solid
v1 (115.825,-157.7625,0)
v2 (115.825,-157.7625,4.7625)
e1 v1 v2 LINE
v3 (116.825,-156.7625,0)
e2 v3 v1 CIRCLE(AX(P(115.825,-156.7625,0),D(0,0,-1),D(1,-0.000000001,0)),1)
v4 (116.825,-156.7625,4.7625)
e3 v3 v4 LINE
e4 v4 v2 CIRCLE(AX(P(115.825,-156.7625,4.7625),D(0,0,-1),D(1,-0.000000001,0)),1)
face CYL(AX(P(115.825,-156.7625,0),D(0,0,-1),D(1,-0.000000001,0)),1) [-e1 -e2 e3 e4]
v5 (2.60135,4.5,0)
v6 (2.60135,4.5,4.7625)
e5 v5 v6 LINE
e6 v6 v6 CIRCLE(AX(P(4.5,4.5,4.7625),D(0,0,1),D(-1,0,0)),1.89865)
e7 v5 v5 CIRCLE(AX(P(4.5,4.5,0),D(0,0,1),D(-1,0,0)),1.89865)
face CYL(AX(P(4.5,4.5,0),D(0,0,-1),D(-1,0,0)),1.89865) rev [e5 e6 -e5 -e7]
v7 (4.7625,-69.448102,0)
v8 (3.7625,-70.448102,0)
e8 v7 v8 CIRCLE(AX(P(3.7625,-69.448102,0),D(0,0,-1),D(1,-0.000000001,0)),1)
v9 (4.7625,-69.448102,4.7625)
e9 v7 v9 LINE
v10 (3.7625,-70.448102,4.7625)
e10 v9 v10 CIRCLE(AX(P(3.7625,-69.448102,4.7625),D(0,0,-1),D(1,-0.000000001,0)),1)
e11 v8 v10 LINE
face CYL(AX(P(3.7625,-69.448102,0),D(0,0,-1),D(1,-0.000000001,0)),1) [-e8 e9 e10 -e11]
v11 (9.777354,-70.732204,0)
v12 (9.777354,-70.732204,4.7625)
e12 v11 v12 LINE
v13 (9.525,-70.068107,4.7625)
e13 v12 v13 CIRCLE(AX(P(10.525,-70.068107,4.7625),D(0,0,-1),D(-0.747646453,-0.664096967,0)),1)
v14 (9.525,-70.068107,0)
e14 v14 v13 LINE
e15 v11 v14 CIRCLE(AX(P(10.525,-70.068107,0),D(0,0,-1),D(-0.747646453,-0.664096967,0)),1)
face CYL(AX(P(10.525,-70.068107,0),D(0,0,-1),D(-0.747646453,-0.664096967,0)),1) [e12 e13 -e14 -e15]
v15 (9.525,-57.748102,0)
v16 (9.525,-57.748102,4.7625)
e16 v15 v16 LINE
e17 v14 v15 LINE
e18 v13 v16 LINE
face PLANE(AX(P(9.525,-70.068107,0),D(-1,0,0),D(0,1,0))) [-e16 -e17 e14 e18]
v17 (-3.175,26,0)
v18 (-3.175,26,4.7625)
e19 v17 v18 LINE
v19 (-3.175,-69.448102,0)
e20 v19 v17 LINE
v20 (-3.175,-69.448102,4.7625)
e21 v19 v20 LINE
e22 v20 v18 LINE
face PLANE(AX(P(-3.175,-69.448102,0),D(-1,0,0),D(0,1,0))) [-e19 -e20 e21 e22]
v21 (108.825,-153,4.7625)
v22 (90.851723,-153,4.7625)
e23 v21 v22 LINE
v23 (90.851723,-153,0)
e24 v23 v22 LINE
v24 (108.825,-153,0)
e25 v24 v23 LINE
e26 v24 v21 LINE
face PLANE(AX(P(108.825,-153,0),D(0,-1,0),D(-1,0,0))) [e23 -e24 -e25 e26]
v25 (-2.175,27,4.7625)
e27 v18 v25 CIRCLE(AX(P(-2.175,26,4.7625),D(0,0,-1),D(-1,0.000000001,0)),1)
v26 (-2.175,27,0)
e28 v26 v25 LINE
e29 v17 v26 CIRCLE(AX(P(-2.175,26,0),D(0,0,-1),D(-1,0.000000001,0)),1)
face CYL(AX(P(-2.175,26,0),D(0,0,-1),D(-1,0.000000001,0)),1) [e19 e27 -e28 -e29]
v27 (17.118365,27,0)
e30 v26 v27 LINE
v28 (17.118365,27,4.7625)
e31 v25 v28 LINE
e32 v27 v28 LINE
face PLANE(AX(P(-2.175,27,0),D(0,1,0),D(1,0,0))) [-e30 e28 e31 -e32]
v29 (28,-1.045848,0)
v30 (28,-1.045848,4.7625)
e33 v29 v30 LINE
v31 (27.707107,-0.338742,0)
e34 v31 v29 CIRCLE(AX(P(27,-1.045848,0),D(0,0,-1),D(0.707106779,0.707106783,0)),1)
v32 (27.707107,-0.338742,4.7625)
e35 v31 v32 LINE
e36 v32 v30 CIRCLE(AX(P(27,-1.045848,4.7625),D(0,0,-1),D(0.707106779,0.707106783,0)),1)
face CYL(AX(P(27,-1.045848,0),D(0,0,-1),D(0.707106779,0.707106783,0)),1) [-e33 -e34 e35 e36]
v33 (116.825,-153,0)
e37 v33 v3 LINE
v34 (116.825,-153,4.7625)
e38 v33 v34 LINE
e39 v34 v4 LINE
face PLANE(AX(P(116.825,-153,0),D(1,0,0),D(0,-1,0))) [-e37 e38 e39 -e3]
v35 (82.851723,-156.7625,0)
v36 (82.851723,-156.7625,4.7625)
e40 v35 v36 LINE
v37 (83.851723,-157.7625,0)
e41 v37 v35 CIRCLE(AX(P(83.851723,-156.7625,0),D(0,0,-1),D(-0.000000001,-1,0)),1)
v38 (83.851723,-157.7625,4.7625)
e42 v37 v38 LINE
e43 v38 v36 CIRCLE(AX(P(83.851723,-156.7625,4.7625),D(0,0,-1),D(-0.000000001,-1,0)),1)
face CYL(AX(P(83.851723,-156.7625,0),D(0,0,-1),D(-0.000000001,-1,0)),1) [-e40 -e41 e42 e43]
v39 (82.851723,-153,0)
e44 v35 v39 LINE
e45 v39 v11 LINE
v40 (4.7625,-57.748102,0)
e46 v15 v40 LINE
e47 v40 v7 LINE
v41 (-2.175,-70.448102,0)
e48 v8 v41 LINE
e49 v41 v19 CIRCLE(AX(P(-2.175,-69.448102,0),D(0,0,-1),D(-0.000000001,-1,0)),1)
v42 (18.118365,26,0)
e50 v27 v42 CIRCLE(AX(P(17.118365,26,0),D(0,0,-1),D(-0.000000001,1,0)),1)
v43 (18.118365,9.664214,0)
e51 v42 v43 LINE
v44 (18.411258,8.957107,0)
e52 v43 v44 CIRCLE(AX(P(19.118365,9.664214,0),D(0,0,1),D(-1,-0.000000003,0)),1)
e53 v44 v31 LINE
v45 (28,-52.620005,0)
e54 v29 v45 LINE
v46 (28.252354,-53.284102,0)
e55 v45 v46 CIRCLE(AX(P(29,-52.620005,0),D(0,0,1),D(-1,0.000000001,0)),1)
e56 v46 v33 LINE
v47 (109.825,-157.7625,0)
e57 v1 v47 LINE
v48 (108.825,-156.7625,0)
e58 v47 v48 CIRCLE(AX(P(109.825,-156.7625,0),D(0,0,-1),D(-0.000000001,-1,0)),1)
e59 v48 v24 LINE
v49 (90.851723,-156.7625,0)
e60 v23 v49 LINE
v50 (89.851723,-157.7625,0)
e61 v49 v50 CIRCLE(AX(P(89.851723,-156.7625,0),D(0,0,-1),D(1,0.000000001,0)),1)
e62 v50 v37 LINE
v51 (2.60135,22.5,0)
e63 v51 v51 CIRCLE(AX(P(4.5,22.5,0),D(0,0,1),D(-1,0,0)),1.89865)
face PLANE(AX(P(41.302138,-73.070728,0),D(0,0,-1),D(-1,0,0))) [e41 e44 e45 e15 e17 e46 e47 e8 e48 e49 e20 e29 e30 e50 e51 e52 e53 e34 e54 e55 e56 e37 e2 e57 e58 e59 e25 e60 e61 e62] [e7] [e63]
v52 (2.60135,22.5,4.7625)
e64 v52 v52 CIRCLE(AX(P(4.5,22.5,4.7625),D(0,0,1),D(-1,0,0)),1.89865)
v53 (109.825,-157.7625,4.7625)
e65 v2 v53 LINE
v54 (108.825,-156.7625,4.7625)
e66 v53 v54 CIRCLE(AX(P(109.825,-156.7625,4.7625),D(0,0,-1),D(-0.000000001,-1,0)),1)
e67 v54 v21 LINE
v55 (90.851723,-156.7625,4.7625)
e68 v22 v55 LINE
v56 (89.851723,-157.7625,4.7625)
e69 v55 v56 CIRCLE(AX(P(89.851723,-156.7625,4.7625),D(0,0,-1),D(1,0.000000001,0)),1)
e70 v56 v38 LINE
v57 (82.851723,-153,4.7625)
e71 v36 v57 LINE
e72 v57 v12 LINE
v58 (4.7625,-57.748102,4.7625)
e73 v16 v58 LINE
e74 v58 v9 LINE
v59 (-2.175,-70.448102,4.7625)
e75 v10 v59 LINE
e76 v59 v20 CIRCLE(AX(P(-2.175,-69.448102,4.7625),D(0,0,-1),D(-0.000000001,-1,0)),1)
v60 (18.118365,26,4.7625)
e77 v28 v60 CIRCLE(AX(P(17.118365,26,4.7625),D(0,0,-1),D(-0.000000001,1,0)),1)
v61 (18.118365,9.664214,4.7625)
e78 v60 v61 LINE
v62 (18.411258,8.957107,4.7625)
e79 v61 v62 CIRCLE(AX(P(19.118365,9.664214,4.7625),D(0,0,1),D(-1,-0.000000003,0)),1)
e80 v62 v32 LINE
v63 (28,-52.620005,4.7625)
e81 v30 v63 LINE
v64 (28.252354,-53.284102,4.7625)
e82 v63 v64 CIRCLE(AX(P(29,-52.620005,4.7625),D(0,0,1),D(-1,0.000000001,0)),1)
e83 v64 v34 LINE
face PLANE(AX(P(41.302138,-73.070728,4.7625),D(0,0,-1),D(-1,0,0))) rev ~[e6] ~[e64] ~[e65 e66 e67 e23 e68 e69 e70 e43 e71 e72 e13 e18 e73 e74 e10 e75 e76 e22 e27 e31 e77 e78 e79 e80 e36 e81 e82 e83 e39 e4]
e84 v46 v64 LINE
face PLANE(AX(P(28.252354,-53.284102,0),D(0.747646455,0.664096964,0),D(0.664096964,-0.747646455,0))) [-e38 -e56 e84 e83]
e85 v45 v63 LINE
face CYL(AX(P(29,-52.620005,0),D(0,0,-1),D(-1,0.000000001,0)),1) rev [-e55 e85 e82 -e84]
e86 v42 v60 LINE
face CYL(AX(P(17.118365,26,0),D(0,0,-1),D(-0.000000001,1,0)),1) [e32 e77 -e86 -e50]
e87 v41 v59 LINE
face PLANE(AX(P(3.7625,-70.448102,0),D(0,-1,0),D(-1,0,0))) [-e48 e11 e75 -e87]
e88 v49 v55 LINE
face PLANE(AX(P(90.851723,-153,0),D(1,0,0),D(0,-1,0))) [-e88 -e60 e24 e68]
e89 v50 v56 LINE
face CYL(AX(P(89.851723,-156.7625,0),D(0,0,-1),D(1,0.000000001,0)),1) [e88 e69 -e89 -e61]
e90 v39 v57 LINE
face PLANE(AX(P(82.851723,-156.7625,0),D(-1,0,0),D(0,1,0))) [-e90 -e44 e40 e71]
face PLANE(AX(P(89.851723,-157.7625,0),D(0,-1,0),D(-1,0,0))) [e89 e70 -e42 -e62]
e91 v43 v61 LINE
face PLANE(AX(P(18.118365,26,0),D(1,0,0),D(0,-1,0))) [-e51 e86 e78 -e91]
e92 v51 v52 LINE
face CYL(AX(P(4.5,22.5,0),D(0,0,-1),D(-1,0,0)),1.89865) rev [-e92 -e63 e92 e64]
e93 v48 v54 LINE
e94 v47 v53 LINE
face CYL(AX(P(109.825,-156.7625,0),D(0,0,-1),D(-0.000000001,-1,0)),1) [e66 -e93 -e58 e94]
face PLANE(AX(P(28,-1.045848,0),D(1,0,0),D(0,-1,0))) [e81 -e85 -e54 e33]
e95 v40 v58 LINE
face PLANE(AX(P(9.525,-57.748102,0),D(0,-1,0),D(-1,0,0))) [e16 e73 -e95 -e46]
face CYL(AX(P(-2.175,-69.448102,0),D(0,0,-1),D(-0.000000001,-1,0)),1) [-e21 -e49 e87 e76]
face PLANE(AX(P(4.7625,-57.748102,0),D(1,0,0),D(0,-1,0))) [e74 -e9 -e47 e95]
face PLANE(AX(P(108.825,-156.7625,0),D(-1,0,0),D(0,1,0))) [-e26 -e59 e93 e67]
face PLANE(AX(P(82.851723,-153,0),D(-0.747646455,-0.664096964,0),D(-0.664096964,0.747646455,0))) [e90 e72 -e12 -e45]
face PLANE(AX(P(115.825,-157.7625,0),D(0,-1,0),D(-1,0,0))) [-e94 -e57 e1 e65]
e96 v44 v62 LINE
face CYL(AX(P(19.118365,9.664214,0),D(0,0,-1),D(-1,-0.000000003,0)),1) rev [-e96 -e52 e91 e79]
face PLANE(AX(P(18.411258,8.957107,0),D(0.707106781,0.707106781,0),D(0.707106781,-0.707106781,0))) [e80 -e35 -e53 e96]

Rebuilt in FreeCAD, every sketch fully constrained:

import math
import FreeCAD as App
import Part
import Sketcher
from FreeCAD import Vector
Q = App.Units.Quantity

doc = App.newDocument("Part")
body = doc.addObject("PartDesign::Body", "Body")

sketch1 = body.newObject("Sketcher::SketchObject", "Sketch")
sketch1.AttachmentSupport = (doc.getObject("XY_Plane"), [""])
sketch1.MapMode = "FlatFace"
sketch1.addGeometry(Part.LineSegment(Vector(17.1, 27, 0), Vector(-2.2, 27, 0)), False)
sketch1.addGeometry(Part.ArcOfCircle(Part.Circle(Vector(-2.2, 26, 0), Vector(0, 0, 1), 1), math.radians(90), math.radians(180)), False)
sketch1.addGeometry(Part.LineSegment(Vector(-3.2, 26, 0), Vector(-3.2, -69.4, 0)), False)
sketch1.addGeometry(Part.ArcOfCircle(Part.Circle(Vector(-2.2, -69.4, 0), Vector(0, 0, 1), 1), math.radians(-180), math.radians(-90)), False)
sketch1.addGeometry(Part.LineSegment(Vector(-2.2, -70.4, 0), Vector(3.8, -70.4, 0)), False)
sketch1.addGeometry(Part.ArcOfCircle(Part.Circle(Vector(3.8, -69.4, 0), Vector(0, 0, 1), 1), math.radians(-90), math.radians(0)), False)
sketch1.addGeometry(Part.LineSegment(Vector(4.8, -69.4, 0), Vector(4.8, -57.7, 0)), False)
sketch1.addGeometry(Part.LineSegment(Vector(4.8, -57.7, 0), Vector(9.5, -57.7, 0)), False)
sketch1.addGeometry(Part.LineSegment(Vector(9.5, -57.7, 0), Vector(9.5, -70.1, 0)), False)
sketch1.addGeometry(Part.ArcOfCircle(Part.Circle(Vector(10.5, -70.1, 0), Vector(0, 0, 1), 1), math.radians(180), math.radians(222)), False)
sketch1.addGeometry(Part.LineSegment(Vector(9.8, -70.7, 0), Vector(82.9, -153, 0)), False)
sketch1.addGeometry(Part.LineSegment(Vector(82.9, -153, 0), Vector(82.9, -156.8, 0)), False)
sketch1.addGeometry(Part.ArcOfCircle(Part.Circle(Vector(83.9, -156.8, 0), Vector(0, 0, 1), 1), math.radians(-180), math.radians(-90)), False)
sketch1.addGeometry(Part.LineSegment(Vector(83.9, -157.8, 0), Vector(89.9, -157.8, 0)), False)
sketch1.addGeometry(Part.ArcOfCircle(Part.Circle(Vector(89.9, -156.8, 0), Vector(0, 0, 1), 1), math.radians(-90), math.radians(0)), False)
sketch1.addGeometry(Part.LineSegment(Vector(90.9, -156.8, 0), Vector(90.9, -153, 0)), False)
sketch1.addGeometry(Part.LineSegment(Vector(90.9, -153, 0), Vector(108.8, -153, 0)), False)
sketch1.addGeometry(Part.LineSegment(Vector(108.8, -153, 0), Vector(108.8, -156.8, 0)), False)
sketch1.addGeometry(Part.ArcOfCircle(Part.Circle(Vector(109.8, -156.8, 0), Vector(0, 0, 1), 1), math.radians(-180), math.radians(-90)), False)
sketch1.addGeometry(Part.LineSegment(Vector(109.8, -157.8, 0), Vector(115.8, -157.8, 0)), False)
sketch1.addGeometry(Part.ArcOfCircle(Part.Circle(Vector(115.8, -156.8, 0), Vector(0, 0, 1), 1), math.radians(-90), math.radians(0)), False)
sketch1.addGeometry(Part.LineSegment(Vector(116.8, -156.8, 0), Vector(116.8, -153, 0)), False)
sketch1.addGeometry(Part.LineSegment(Vector(116.8, -153, 0), Vector(28.3, -53.3, 0)), False)
sketch1.addGeometry(Part.ArcOfCircle(Part.Circle(Vector(29, -52.6, 0), Vector(0, 0, 1), 1), math.radians(180), math.radians(222)), False)
sketch1.addGeometry(Part.LineSegment(Vector(28, -52.6, 0), Vector(28, -1, 0)), False)
sketch1.addGeometry(Part.ArcOfCircle(Part.Circle(Vector(27, -1, 0), Vector(0, 0, 1), 1), math.radians(0), math.radians(45)), False)
sketch1.addGeometry(Part.LineSegment(Vector(27.7, -0.3, 0), Vector(18.4, 9, 0)), False)
sketch1.addGeometry(Part.ArcOfCircle(Part.Circle(Vector(19.1, 9.7, 0), Vector(0, 0, 1), 1), math.radians(-180), math.radians(-135)), False)
sketch1.addGeometry(Part.LineSegment(Vector(18.1, 9.7, 0), Vector(18.1, 26, 0)), False)
sketch1.addGeometry(Part.ArcOfCircle(Part.Circle(Vector(17.1, 26, 0), Vector(0, 0, 1), 1), math.radians(0), math.radians(90)), False)
sketch1.addGeometry(Part.Circle(Vector(4.5, 4.5, 0), Vector(0, 0, 1), 1.9), False)
sketch1.addGeometry(Part.Circle(Vector(4.5, 22.5, 0), Vector(0, 0, 1), 1.9), False)
sketch1.addConstraint(Sketcher.Constraint("Tangent", 0, 2, 1, 1))
sketch1.addConstraint(Sketcher.Constraint("Tangent", 1, 2, 2, 1))
sketch1.addConstraint(Sketcher.Constraint("Tangent", 2, 2, 3, 1))
sketch1.addConstraint(Sketcher.Constraint("Tangent", 3, 2, 4, 1))
sketch1.addConstraint(Sketcher.Constraint("Tangent", 4, 2, 5, 1))
sketch1.addConstraint(Sketcher.Constraint("Tangent", 5, 2, 6, 1))
sketch1.addConstraint(Sketcher.Constraint("Coincident", 6, 2, 7, 1))
sketch1.addConstraint(Sketcher.Constraint("Coincident", 7, 2, 8, 1))
sketch1.addConstraint(Sketcher.Constraint("Tangent", 8, 2, 9, 1))
sketch1.addConstraint(Sketcher.Constraint("Tangent", 9, 2, 10, 1))
sketch1.addConstraint(Sketcher.Constraint("Coincident", 10, 2, 11, 1))
sketch1.addConstraint(Sketcher.Constraint("Tangent", 11, 2, 12, 1))
sketch1.addConstraint(Sketcher.Constraint("Tangent", 12, 2, 13, 1))
sketch1.addConstraint(Sketcher.Constraint("Tangent", 13, 2, 14, 1))
sketch1.addConstraint(Sketcher.Constraint("Tangent", 14, 2, 15, 1))
sketch1.addConstraint(Sketcher.Constraint("Coincident", 15, 2, 16, 1))
sketch1.addConstraint(Sketcher.Constraint("Coincident", 16, 2, 17, 1))
sketch1.addConstraint(Sketcher.Constraint("Tangent", 17, 2, 18, 1))
sketch1.addConstraint(Sketcher.Constraint("Tangent", 18, 2, 19, 1))
sketch1.addConstraint(Sketcher.Constraint("Tangent", 19, 2, 20, 1))
sketch1.addConstraint(Sketcher.Constraint("Tangent", 20, 2, 21, 1))
sketch1.addConstraint(Sketcher.Constraint("Coincident", 21, 2, 22, 1))
sketch1.addConstraint(Sketcher.Constraint("Tangent", 22, 2, 23, 2))
sketch1.addConstraint(Sketcher.Constraint("Tangent", 23, 1, 24, 1))
sketch1.addConstraint(Sketcher.Constraint("Tangent", 24, 2, 25, 1))
sketch1.addConstraint(Sketcher.Constraint("Tangent", 25, 2, 26, 1))
sketch1.addConstraint(Sketcher.Constraint("Tangent", 26, 2, 27, 2))
sketch1.addConstraint(Sketcher.Constraint("Tangent", 27, 1, 28, 1))
sketch1.addConstraint(Sketcher.Constraint("Tangent", 28, 2, 29, 1))
sketch1.addConstraint(Sketcher.Constraint("Tangent", 29, 2, 0, 1))
sketch1.addConstraint(Sketcher.Constraint("Horizontal", 0))
sketch1.addConstraint(Sketcher.Constraint("Vertical", 2))
sketch1.addConstraint(Sketcher.Constraint("Horizontal", 4))
sketch1.addConstraint(Sketcher.Constraint("Vertical", 6))
sketch1.addConstraint(Sketcher.Constraint("Horizontal", 7))
sketch1.addConstraint(Sketcher.Constraint("Vertical", 8))
sketch1.addConstraint(Sketcher.Constraint("Vertical", 11))
sketch1.addConstraint(Sketcher.Constraint("Horizontal", 13))
sketch1.addConstraint(Sketcher.Constraint("Vertical", 15))
sketch1.addConstraint(Sketcher.Constraint("Horizontal", 16))
sketch1.addConstraint(Sketcher.Constraint("Vertical", 17))
sketch1.addConstraint(Sketcher.Constraint("Horizontal", 19))
sketch1.addConstraint(Sketcher.Constraint("Vertical", 21))
sketch1.addConstraint(Sketcher.Constraint("Vertical", 24))
sketch1.addConstraint(Sketcher.Constraint("Vertical", 28))
sketch1.addConstraint(Sketcher.Constraint("Equal", 1, 3))
sketch1.addConstraint(Sketcher.Constraint("Equal", 3, 5))
sketch1.addConstraint(Sketcher.Constraint("Equal", 5, 9))
sketch1.addConstraint(Sketcher.Constraint("Equal", 9, 12))
sketch1.addConstraint(Sketcher.Constraint("Equal", 12, 14))
sketch1.addConstraint(Sketcher.Constraint("Equal", 14, 18))
sketch1.addConstraint(Sketcher.Constraint("Equal", 18, 20))
sketch1.addConstraint(Sketcher.Constraint("Equal", 20, 23))
sketch1.addConstraint(Sketcher.Constraint("Equal", 23, 25))
sketch1.addConstraint(Sketcher.Constraint("Equal", 25, 27))
sketch1.addConstraint(Sketcher.Constraint("Equal", 27, 29))
sketch1.addConstraint(Sketcher.Constraint("Equal", 30, 31))
sketch1.addConstraint(Sketcher.Constraint("Parallel", 10, 22))
sketch1.addConstraint(Sketcher.Constraint("Horizontal", 14, 3, 18, 3))
sketch1.addConstraint(Sketcher.Constraint("Horizontal", 10, 2, 15, 2))
sketch1.addConstraint(Sketcher.Constraint("Horizontal", 16, 2, 21, 2))
sketch1.addConstraint(Sketcher.Constraint("Vertical", 30, 3, 31, 3))
sketch1.addConstraint(Sketcher.Constraint("Equal", 13, 19))
sketch1.addConstraint(Sketcher.Constraint("Radius", 1, 1.0))
sketch1.addConstraint(Sketcher.Constraint("DistanceX", 13, 1, 13, 2, 6.0))
sketch1.addConstraint(Sketcher.Constraint("Angle", 26, Q("135 deg")))
sketch1.addConstraint(Sketcher.Constraint("DistanceY", 6, 1, 6, 2, 11.7))
sketch1.addConstraint(Sketcher.Constraint("DistanceY", -1, 1, 1, 3, 26.0))
sketch1.addConstraint(Sketcher.Constraint("DistanceX", -1, 1, 23, 3, 29.0))
sketch1.addConstraint(Sketcher.Constraint("DistanceY", 10, 2, -1, 1, 153.0))
sketch1.addConstraint(Sketcher.Constraint("DistanceX", 3, 3, 18, 3, 112.0))
sketch1.addConstraint(Sketcher.Constraint("DistanceY", 30, 3, 31, 3, 18.0))
sketch1.addConstraint(Sketcher.Constraint("Diameter", 30, 3.7973))
sketch1.addConstraint(Sketcher.Constraint("DistanceX", -1, 1, 30, 3, 4.5))
sketch1.addConstraint(Sketcher.Constraint("DistanceY", -1, 1, 30, 3, 4.5))
sketch1.addConstraint(Sketcher.Constraint("DistanceX", 3, 3, 9, 3, 12.7))
sketch1.addConstraint(Sketcher.Constraint("DistanceX", 4, 1, 4, 2, 5.9375))
sketch1.addConstraint(Sketcher.Constraint("DistanceY", 11, 2, 11, 1, 3.7625))
sketch1.addConstraint(Sketcher.Constraint("DistanceX", 1, 3, -1, 1, 2.175))
sketch1.addConstraint(Sketcher.Constraint("DistanceY", 7, 2, 22, 2, 4.464))
sketch1.addConstraint(Sketcher.Constraint("DistanceY", 22, 2, -1, 1, 53.284102))
sketch1.addConstraint(Sketcher.Constraint("DistanceY", 9, 2, 5, 2, 1.284102))
sketch1.addConstraint(Sketcher.Constraint("DistanceX", 0, 2, 0, 1, 19.293365))
sketch1.addConstraint(Sketcher.Constraint("DistanceY", 24, 1, 24, 2, 51.574157))
pad1 = body.newObject("PartDesign::Pad", "Pad")
pad1.Profile = sketch1
pad1.Length = 4.7625

doc.recompute()
